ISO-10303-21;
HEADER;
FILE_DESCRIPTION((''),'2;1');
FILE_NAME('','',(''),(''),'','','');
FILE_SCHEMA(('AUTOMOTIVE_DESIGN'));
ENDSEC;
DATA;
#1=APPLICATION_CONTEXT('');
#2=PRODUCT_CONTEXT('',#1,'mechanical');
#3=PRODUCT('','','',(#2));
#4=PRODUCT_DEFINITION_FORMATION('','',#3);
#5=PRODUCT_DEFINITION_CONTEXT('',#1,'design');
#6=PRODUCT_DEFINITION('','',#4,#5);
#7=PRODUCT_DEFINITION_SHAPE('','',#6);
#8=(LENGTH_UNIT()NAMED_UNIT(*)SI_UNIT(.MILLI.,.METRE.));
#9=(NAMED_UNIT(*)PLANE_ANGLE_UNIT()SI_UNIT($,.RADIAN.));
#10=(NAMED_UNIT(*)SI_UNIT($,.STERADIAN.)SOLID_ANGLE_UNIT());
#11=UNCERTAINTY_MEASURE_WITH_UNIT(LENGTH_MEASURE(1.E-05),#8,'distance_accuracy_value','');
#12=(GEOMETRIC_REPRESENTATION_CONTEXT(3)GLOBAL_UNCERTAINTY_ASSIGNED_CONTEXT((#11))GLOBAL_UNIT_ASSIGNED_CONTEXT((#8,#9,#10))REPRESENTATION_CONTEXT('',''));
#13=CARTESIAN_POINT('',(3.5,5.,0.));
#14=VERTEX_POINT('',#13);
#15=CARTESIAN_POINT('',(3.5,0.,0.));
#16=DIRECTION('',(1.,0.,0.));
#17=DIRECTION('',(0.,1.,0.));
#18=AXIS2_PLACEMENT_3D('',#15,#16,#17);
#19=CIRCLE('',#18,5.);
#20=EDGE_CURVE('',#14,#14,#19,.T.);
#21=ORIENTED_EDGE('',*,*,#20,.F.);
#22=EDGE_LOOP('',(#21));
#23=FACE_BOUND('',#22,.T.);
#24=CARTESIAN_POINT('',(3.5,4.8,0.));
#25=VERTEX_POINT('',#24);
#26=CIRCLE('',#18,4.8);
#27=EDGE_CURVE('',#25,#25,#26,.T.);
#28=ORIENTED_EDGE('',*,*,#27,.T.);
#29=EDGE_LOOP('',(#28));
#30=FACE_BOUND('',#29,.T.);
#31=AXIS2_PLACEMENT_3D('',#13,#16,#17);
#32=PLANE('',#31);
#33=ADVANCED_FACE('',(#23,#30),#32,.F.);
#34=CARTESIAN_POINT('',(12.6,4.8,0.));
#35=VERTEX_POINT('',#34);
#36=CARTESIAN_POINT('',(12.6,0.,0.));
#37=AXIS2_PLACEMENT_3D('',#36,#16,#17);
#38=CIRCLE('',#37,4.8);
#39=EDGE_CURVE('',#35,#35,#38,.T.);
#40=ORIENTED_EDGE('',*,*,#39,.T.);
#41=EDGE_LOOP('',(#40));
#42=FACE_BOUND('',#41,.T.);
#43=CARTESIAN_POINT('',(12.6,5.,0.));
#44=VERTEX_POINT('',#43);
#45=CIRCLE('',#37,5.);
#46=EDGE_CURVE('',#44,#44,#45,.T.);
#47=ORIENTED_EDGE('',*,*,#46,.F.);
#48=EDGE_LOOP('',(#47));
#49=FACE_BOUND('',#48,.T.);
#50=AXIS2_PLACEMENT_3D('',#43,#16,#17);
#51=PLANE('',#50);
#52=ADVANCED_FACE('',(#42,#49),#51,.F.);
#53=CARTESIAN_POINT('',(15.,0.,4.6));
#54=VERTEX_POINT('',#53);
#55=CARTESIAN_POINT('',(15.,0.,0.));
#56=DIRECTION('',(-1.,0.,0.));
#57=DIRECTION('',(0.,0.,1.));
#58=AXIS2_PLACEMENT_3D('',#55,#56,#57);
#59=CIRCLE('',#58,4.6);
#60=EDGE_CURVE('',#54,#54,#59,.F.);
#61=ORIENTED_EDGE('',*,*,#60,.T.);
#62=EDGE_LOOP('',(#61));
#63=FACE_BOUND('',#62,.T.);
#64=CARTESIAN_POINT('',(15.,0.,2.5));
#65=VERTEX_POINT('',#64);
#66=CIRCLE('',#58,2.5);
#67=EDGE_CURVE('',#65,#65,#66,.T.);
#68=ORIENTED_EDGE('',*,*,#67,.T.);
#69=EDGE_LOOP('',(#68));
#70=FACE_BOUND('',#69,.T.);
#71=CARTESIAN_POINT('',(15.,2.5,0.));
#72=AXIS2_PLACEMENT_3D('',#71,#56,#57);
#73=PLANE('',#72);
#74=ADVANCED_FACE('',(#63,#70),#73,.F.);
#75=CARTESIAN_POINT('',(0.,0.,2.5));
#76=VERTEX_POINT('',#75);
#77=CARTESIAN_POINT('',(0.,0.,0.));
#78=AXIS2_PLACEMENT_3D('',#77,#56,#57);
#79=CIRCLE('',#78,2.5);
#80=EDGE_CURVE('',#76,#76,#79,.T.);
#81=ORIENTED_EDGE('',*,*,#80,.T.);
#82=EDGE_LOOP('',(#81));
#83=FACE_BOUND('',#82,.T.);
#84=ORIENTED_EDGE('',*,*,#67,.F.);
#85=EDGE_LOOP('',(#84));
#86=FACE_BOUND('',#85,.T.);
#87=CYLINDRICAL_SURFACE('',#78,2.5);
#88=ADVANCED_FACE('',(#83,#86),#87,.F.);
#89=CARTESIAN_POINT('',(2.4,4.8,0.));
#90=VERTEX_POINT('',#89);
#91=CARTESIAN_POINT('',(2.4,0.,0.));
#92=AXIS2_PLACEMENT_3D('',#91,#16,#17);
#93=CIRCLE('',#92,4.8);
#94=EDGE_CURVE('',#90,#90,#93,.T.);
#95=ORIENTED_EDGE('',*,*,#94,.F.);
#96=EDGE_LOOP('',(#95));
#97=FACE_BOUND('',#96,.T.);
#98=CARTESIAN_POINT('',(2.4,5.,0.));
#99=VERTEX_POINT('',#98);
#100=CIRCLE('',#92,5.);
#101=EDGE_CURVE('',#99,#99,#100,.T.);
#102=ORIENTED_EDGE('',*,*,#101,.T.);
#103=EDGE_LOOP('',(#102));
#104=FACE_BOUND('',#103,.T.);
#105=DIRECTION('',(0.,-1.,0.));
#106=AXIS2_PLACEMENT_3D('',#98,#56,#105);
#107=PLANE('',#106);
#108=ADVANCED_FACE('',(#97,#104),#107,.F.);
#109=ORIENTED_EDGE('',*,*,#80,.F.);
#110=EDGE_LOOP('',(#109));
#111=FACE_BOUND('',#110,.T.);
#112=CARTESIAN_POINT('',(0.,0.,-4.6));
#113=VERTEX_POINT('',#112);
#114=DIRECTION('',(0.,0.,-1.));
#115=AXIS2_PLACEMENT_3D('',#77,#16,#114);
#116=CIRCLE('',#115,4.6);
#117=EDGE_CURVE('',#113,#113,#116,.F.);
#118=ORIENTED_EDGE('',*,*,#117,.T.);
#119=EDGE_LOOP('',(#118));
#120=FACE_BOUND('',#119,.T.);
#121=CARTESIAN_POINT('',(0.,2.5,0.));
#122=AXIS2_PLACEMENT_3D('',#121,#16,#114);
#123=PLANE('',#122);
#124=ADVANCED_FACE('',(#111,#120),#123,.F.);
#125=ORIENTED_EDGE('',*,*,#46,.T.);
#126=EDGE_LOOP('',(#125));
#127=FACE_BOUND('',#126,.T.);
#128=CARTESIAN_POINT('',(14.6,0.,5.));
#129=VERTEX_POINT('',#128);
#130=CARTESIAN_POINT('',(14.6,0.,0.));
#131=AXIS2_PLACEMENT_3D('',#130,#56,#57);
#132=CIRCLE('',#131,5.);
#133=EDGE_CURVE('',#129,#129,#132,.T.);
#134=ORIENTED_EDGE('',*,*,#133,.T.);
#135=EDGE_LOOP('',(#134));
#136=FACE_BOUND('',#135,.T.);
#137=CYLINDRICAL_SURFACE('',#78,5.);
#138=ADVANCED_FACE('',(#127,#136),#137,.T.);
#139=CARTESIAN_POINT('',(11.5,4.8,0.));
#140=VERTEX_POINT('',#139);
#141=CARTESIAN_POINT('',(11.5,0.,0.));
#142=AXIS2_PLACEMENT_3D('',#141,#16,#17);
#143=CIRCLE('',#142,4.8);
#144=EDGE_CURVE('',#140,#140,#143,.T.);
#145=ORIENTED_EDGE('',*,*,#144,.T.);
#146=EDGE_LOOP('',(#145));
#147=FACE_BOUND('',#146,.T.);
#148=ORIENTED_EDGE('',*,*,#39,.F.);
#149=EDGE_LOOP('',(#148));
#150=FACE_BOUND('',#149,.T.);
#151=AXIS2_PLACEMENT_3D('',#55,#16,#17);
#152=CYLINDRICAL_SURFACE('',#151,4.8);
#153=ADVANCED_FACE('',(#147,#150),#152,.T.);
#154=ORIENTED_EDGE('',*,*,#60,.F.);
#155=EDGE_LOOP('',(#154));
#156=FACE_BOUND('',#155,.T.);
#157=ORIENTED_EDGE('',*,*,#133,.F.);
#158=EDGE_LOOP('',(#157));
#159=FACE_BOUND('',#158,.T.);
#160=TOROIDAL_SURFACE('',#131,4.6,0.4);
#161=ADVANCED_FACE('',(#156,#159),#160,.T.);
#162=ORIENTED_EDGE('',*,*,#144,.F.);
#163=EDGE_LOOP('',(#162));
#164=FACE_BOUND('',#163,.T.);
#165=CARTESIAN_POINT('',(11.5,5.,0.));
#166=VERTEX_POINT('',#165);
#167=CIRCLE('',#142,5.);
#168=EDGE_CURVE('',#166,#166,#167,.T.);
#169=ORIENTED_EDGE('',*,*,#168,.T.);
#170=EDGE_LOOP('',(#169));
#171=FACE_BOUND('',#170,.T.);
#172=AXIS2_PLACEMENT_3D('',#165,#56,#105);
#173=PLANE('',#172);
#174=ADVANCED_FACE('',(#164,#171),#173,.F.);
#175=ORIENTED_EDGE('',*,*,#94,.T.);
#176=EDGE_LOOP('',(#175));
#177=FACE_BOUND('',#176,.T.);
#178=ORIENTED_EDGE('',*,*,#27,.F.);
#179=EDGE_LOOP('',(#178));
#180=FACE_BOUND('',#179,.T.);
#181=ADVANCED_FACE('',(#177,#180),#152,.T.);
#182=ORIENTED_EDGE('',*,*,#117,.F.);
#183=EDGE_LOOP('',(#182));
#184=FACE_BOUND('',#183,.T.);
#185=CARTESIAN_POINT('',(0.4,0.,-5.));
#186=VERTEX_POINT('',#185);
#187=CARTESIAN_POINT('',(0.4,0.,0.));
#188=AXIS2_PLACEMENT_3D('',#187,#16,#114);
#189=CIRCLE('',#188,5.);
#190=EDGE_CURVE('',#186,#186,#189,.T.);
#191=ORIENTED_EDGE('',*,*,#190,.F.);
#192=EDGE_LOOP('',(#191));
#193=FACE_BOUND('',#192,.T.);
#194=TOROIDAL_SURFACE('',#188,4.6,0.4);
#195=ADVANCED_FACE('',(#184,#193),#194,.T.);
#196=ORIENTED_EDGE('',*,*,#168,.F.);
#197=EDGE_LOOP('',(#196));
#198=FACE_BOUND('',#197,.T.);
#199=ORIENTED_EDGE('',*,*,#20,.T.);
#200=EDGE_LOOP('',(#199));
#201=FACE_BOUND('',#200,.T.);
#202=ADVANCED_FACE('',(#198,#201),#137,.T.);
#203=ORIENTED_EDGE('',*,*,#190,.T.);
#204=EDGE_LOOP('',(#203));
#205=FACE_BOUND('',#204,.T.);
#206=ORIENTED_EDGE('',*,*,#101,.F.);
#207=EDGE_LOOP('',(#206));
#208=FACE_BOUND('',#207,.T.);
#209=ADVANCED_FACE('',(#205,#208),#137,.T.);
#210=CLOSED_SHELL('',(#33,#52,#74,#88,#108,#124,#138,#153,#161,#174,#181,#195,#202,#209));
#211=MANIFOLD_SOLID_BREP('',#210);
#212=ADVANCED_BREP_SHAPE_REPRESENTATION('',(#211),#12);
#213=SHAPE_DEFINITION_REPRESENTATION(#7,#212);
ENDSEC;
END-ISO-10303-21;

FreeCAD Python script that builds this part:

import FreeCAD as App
import Part
import Sketcher

V = App.Vector
Q = App.Units.Quantity


def edges_at(feature, points):
    """Names of the edges that pass closest to the given points."""
    edges = feature.Shape.Edges
    near = lambda p: min(range(len(edges)), key=lambda i: edges[i].distToShape(Part.Vertex(*p))[0])
    return sorted({f"Edge{near(p) + 1}" for p in points})

doc = App.newDocument("Part")
body = doc.addObject("PartDesign::Body", "Body")

sketch1 = body.newObject("Sketcher::SketchObject", "Sketch")
sketch1.AttachmentSupport = (doc.getObject("XY_Plane"), [""])
sketch1.MapMode = "FlatFace"
sketch1.addGeometry([
    Part.LineSegment(V(0, 5, 0), V(0, 2.5, 0)),
    Part.LineSegment(V(0, 2.5, 0), V(15, 2.5, 0)),
    Part.LineSegment(V(15, 2.5, 0), V(15, 5, 0)),
    Part.LineSegment(V(15, 5, 0), V(0, 5, 0)),
], False)
sketch1.addConstraint([
    Sketcher.Constraint("Coincident", 0, 2, 1, 1),
    Sketcher.Constraint("Coincident", 1, 2, 2, 1),
    Sketcher.Constraint("Coincident", 2, 2, 3, 1),
    Sketcher.Constraint("Coincident", 3, 2, 0, 1),
    Sketcher.Constraint("Vertical", 0),
    Sketcher.Constraint("Horizontal", 1),
    Sketcher.Constraint("Vertical", 2),
    Sketcher.Constraint("Horizontal", 3),
    Sketcher.Constraint("PointOnObject", 0, 2, -2),
    Sketcher.Constraint("DistanceX", 1, 1, 1, 2, Q("15 mm")),
    Sketcher.Constraint("DistanceY", 0, 2, 0, 1, Q("2.5 mm")),
    Sketcher.Constraint("DistanceY", -1, 1, 2, 2, Q("5 mm")),
])
revolution = body.newObject("PartDesign::Revolution", "Revolution")
revolution.Profile = sketch1
revolution.ReferenceAxis = (sketch1, ["H_Axis"])
revolution.Angle = 360
doc.recompute()

fillet = body.newObject("PartDesign::Fillet", "Fillet")
fillet.Base = (revolution, edges_at(revolution, [(0, -5, 0), (15, -5, 0)]))
fillet.Radius = 0.4

sketch2 = body.newObject("Sketcher::SketchObject", "Sketch001")
sketch2.AttachmentSupport = (doc.getObject("XY_Plane"), [""])
sketch2.MapMode = "FlatFace"
sketch2.addGeometry([
    Part.LineSegment(V(11.5, 5, 0), V(11.5, 4.8, 0)),
    Part.LineSegment(V(11.5, 4.8, 0), V(12.6, 4.8, 0)),
    Part.LineSegment(V(12.6, 4.8, 0), V(12.6, 5, 0)),
    Part.LineSegment(V(12.6, 5, 0), V(11.5, 5, 0)),
    Part.LineSegment(V(2.4, 5, 0), V(2.4, 4.8, 0)),
    Part.LineSegment(V(2.4, 4.8, 0), V(3.5, 4.8, 0)),
    Part.LineSegment(V(3.5, 4.8, 0), V(3.5, 5, 0)),
    Part.LineSegment(V(3.5, 5, 0), V(2.4, 5, 0)),
], False)
sketch2.addConstraint([
    Sketcher.Constraint("Coincident", 0, 2, 1, 1),
    Sketcher.Constraint("Coincident", 1, 2, 2, 1),
    Sketcher.Constraint("Coincident", 2, 2, 3, 1),
    Sketcher.Constraint("Coincident", 3, 2, 0, 1),
    Sketcher.Constraint("Coincident", 4, 2, 5, 1),
    Sketcher.Constraint("Coincident", 5, 2, 6, 1),
    Sketcher.Constraint("Coincident", 6, 2, 7, 1),
    Sketcher.Constraint("Coincident", 7, 2, 4, 1),
    Sketcher.Constraint("Vertical", 0),
    Sketcher.Constraint("Horizontal", 1),
    Sketcher.Constraint("Vertical", 2),
    Sketcher.Constraint("Horizontal", 3),
    Sketcher.Constraint("Vertical", 4),
    Sketcher.Constraint("Horizontal", 5),
    Sketcher.Constraint("Vertical", 6),
    Sketcher.Constraint("Horizontal", 7),
    Sketcher.Constraint("Horizontal", 1, 2, 4, 2),
    Sketcher.Constraint("Horizontal", 3, 2, 6, 2),
    Sketcher.Constraint("Equal", 3, 5),
    Sketcher.Constraint("DistanceX", 1, 1, 1, 2, Q("1.1 mm")),
    Sketcher.Constraint("DistanceY", 0, 2, 0, 1, Q("0.2 mm")),
    Sketcher.Constraint("DistanceY", -1, 1, 2, 2, Q("5 mm")),
    Sketcher.Constraint("DistanceX", 5, 2, 0, 2, Q("8 mm")),
    Sketcher.Constraint("DistanceX", -1, 1, 0, 2, Q("11.5 mm")),
])
groove = body.newObject("PartDesign::Groove", "Groove")
groove.Profile = sketch2
groove.ReferenceAxis = (sketch2, ["H_Axis"])
groove.Angle = 360

doc.recompute()
